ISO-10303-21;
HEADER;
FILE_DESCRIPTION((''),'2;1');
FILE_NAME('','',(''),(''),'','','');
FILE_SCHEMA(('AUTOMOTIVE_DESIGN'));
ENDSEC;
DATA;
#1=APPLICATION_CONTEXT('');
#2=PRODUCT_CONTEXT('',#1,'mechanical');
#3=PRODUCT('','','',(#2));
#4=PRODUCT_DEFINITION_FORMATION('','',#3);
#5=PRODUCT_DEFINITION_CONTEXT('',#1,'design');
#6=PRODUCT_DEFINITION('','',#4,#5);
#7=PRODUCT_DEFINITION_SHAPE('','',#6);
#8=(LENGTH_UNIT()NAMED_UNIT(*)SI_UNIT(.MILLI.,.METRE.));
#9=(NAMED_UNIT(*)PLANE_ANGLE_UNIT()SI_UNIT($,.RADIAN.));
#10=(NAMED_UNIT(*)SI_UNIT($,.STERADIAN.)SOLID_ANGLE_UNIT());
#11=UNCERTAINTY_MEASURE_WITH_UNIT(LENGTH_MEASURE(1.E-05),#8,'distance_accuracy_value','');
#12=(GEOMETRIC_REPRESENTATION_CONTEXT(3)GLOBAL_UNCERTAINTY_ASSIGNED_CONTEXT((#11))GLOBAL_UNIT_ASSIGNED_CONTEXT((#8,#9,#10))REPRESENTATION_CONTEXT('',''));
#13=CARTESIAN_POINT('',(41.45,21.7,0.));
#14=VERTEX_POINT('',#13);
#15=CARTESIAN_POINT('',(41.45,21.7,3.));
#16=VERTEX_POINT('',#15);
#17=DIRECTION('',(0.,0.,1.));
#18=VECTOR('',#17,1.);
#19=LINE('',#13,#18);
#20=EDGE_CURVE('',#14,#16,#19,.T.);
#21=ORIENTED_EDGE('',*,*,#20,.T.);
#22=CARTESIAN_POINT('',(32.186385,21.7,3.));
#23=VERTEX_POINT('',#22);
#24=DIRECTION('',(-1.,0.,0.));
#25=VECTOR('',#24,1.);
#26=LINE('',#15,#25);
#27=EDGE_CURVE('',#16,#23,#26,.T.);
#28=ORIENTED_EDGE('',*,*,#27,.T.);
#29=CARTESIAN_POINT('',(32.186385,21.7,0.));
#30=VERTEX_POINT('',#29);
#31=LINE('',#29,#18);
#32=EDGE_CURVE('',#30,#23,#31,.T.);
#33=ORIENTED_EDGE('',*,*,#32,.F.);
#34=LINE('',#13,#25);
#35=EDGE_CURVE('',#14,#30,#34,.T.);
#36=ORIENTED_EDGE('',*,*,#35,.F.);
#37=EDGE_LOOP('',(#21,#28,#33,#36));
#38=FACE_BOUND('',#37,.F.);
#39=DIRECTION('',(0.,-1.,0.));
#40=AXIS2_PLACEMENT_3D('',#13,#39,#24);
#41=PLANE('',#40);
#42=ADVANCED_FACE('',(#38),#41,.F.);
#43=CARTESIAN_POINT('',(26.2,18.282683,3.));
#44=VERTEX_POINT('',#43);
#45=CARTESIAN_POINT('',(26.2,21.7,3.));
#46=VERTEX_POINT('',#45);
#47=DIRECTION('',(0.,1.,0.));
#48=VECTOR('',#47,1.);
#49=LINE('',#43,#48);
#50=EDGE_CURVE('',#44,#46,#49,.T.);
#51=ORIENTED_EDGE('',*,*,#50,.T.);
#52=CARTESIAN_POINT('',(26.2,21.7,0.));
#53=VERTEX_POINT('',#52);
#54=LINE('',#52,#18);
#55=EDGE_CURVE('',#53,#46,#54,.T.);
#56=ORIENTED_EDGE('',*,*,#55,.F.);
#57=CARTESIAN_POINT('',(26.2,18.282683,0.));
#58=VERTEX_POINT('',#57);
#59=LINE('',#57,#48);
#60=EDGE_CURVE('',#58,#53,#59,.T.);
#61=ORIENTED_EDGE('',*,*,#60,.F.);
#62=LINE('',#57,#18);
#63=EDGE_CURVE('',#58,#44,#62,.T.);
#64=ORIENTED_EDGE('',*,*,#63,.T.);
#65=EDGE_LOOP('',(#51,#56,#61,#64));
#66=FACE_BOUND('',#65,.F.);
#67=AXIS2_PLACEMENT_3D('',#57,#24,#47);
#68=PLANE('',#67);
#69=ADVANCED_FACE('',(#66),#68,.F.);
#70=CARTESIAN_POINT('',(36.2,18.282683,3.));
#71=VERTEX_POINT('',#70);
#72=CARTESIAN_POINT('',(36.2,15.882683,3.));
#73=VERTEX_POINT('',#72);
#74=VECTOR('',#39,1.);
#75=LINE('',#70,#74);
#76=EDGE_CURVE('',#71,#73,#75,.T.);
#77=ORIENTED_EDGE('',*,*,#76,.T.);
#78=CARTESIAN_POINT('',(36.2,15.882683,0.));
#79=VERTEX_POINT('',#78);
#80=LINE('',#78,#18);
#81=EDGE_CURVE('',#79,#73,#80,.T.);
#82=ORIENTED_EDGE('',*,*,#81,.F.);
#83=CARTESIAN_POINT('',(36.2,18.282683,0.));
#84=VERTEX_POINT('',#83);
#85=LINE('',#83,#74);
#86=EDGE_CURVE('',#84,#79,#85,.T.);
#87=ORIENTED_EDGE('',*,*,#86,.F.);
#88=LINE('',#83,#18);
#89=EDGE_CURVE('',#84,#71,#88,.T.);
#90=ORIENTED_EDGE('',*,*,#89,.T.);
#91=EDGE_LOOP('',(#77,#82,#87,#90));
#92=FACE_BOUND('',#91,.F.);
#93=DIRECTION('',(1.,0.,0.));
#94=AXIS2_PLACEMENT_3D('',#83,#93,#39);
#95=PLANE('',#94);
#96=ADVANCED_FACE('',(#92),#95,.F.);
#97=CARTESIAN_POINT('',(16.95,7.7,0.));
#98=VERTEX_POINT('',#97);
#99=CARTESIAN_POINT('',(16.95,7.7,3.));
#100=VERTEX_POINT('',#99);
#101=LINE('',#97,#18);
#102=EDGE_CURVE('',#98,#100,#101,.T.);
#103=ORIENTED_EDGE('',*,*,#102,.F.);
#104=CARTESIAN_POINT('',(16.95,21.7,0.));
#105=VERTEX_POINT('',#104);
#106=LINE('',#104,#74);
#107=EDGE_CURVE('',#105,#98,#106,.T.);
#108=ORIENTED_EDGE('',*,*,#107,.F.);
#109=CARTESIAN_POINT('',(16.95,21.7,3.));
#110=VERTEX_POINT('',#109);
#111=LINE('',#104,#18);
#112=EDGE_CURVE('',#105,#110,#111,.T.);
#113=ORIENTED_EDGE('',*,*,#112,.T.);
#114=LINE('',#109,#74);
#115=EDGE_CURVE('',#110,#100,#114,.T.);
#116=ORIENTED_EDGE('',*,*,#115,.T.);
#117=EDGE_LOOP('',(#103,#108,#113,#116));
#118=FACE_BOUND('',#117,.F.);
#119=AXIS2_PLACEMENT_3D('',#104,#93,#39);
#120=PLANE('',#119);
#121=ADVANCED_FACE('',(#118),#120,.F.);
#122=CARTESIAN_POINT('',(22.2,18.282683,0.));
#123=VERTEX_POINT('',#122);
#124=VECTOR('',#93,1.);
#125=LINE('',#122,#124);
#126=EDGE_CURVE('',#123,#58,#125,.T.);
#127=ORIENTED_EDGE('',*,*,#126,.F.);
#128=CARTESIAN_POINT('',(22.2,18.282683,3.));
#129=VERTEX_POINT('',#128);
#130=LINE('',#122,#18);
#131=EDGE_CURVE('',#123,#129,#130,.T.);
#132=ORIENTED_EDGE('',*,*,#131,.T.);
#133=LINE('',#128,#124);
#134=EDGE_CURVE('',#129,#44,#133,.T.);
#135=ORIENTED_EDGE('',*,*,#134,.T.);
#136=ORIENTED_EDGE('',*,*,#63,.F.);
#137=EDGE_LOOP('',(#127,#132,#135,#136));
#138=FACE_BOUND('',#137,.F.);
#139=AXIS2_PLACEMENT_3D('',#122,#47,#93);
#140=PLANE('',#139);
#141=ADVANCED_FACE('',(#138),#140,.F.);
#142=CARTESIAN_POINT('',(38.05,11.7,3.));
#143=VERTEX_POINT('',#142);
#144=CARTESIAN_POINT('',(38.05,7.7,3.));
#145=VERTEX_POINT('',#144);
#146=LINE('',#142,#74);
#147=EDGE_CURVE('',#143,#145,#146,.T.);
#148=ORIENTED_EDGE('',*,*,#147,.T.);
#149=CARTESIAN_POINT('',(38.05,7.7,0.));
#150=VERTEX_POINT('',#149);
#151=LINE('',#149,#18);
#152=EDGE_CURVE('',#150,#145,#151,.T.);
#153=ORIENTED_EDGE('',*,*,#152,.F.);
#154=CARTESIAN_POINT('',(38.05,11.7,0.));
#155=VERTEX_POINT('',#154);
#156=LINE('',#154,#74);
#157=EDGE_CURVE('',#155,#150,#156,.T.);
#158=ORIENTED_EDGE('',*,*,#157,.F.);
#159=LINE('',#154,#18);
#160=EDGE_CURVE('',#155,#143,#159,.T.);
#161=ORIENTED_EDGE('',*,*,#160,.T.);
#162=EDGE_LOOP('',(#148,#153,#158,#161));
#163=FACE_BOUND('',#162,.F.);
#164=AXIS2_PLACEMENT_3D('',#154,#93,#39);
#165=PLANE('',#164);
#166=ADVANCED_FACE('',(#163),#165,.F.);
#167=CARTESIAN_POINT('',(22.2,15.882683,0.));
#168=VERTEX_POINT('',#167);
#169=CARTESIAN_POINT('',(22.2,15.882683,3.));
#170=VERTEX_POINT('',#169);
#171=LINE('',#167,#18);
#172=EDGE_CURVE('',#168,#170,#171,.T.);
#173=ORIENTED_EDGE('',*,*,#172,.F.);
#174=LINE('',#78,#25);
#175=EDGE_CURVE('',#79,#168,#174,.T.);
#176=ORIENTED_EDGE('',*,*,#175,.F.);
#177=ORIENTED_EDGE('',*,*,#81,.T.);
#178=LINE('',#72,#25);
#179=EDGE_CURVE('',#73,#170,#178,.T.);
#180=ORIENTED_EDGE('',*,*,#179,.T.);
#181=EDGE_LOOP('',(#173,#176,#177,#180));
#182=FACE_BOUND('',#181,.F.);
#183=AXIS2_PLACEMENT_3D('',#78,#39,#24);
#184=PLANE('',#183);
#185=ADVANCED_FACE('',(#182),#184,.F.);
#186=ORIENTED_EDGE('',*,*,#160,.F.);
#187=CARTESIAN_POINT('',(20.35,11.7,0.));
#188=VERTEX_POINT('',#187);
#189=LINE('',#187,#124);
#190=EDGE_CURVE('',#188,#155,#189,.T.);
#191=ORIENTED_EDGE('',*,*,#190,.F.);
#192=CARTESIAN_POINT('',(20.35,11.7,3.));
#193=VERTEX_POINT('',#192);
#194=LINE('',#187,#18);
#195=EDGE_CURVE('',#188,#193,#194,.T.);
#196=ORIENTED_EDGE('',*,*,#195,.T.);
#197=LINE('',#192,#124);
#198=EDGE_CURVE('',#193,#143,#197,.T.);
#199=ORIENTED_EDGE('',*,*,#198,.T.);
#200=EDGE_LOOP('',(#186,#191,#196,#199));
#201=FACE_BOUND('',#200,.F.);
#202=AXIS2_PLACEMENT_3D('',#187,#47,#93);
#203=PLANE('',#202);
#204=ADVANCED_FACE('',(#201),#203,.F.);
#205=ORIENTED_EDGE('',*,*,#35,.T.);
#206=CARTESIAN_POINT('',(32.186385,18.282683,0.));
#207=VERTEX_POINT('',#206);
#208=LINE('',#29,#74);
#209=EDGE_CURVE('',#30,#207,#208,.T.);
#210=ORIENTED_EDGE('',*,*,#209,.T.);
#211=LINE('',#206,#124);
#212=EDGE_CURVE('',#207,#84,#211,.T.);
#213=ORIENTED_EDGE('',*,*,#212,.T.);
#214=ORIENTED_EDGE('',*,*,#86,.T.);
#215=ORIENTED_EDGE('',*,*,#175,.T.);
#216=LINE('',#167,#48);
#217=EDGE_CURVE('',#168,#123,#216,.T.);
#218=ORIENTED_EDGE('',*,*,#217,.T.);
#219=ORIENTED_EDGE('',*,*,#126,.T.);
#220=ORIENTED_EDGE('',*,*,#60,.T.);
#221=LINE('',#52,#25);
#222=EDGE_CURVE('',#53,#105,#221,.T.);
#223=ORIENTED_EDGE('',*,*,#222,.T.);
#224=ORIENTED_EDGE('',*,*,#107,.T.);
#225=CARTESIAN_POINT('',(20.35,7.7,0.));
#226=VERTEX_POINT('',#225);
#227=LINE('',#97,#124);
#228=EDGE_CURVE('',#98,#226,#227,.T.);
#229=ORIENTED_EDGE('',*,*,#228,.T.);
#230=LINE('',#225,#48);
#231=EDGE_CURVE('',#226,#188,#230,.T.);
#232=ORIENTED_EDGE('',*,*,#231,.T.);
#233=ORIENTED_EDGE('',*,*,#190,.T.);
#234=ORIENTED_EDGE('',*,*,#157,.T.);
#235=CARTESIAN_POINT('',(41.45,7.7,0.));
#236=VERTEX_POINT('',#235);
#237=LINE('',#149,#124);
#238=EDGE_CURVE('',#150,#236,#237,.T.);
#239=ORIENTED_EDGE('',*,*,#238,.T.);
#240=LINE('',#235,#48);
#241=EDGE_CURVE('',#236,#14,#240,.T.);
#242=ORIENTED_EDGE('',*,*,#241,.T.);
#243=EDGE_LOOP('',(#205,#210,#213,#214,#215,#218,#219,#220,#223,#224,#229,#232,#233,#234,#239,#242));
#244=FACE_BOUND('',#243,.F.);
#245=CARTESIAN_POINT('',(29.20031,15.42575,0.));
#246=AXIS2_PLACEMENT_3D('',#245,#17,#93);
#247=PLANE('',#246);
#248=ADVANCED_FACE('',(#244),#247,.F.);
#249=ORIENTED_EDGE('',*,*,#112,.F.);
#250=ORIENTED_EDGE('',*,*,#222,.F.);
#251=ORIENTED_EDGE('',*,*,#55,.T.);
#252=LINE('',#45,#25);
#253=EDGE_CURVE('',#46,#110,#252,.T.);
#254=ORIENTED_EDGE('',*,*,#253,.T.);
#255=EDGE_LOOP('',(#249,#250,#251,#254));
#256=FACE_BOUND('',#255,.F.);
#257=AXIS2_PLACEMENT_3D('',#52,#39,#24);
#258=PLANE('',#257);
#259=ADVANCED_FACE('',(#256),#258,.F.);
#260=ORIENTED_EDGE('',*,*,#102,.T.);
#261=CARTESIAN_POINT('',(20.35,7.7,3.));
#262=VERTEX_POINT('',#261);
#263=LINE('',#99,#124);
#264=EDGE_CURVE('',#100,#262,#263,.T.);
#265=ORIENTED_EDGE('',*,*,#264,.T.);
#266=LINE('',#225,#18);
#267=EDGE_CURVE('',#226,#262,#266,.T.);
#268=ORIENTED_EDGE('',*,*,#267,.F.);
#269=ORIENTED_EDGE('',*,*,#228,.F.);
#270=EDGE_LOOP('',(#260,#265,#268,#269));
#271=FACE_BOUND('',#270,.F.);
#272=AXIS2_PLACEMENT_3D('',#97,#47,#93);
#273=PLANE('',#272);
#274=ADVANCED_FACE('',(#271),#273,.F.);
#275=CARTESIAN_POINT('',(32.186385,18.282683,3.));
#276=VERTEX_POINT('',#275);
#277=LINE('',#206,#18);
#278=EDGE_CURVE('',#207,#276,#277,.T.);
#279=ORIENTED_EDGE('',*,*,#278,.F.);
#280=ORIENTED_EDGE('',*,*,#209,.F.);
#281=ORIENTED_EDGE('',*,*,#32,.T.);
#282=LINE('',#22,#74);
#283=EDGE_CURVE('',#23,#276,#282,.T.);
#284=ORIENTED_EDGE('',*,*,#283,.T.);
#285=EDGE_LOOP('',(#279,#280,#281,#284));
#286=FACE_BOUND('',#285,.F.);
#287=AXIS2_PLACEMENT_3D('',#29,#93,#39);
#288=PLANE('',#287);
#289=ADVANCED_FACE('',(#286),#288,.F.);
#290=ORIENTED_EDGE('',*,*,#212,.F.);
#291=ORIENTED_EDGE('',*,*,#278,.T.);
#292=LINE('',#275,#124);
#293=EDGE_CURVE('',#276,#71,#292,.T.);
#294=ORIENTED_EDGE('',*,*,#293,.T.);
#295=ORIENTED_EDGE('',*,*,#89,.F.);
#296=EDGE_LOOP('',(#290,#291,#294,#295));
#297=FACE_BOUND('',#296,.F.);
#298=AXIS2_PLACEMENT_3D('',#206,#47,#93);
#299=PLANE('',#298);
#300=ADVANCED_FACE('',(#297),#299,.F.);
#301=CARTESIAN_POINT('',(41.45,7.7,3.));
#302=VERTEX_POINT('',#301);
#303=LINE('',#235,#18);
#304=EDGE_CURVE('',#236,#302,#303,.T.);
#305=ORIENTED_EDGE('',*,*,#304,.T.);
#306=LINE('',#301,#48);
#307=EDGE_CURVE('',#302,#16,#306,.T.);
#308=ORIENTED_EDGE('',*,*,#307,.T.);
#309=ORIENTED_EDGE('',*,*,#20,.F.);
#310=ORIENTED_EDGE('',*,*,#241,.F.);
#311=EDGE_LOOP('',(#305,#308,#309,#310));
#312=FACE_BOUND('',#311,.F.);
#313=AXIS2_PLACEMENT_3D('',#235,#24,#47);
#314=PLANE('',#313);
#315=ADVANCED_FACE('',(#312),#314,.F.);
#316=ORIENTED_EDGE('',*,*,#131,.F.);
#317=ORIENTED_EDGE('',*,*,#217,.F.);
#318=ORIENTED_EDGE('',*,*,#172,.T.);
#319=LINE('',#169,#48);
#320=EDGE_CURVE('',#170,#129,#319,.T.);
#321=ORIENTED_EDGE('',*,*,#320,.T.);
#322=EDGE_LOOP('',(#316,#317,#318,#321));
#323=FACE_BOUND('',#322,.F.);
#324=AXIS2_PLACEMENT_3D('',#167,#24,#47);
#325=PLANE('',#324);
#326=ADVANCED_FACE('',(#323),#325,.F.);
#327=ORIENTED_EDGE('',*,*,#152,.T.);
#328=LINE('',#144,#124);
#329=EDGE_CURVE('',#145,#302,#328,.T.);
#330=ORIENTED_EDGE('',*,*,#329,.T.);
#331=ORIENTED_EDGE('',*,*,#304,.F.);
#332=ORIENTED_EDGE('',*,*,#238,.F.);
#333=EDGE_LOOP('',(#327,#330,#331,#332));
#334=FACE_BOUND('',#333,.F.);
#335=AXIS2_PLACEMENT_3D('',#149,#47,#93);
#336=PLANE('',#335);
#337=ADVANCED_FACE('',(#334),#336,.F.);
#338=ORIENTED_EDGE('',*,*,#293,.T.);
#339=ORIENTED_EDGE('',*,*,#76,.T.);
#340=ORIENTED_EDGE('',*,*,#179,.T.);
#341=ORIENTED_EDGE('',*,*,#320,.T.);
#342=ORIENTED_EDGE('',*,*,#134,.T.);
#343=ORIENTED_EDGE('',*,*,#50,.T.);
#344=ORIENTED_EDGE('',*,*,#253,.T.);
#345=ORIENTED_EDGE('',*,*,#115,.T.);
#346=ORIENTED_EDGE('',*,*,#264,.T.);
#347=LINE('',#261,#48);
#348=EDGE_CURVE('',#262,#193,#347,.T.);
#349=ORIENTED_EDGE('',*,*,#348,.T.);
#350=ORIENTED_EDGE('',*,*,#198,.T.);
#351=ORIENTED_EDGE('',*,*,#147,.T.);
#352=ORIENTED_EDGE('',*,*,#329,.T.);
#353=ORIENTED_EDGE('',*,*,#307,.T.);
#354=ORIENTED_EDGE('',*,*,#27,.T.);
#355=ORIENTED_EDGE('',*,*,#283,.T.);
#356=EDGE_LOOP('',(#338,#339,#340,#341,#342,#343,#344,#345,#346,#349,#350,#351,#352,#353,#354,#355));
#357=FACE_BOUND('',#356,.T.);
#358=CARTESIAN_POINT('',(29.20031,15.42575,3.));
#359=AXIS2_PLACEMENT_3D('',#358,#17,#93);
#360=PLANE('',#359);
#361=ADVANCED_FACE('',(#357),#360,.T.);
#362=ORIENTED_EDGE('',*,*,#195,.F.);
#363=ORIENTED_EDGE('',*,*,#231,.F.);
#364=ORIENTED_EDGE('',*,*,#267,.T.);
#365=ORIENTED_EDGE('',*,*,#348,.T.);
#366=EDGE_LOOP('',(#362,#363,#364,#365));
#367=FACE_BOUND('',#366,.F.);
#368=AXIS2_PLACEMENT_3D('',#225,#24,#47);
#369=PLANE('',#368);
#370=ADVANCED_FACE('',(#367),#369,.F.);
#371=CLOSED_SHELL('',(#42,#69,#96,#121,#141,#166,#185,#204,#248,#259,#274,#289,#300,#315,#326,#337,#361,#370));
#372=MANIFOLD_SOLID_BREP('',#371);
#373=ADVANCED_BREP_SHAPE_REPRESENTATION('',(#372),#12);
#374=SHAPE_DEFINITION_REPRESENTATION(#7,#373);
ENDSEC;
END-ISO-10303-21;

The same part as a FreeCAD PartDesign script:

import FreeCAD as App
import Part
import Sketcher
from FreeCAD import Vector


def add_polygon(sketch, points):
    """Adds a closed chain of lines whose ends are joined by coincident constraints."""
    first, n = sketch.GeometryCount, len(points)
    for a, b in zip(points, points[1:] + points[:1]):
        sketch.addGeometry(Part.LineSegment(App.Vector(*a, 0), App.Vector(*b, 0)), False)
    for i in range(n):
        sketch.addConstraint(Sketcher.Constraint("Coincident", first + i, 2, first + (i + 1) % n, 1))

doc = App.newDocument("Part")
body = doc.addObject("PartDesign::Body", "Body")

sketch1 = body.newObject("Sketcher::SketchObject", "Sketch")
sketch1.AttachmentSupport = (doc.getObject("XY_Plane"), [""])
sketch1.MapMode = "FlatFace"
add_polygon(sketch1, [(38, 7.7), (41.5, 7.7), (41.5, 21.7), (32.2, 21.7), (32.2, 18.3), (36.2, 18.3), (36.2, 15.9), (22.2, 15.9), (22.2, 18.3), (26.2, 18.3), (26.2, 21.7), (16.9, 21.7), (16.9, 7.7), (20.4, 7.7), (20.4, 11.7), (38, 11.7)])
sketch1.addConstraint(Sketcher.Constraint("Horizontal", 0))
sketch1.addConstraint(Sketcher.Constraint("Vertical", 1))
sketch1.addConstraint(Sketcher.Constraint("Horizontal", 2))
sketch1.addConstraint(Sketcher.Constraint("Vertical", 3))
sketch1.addConstraint(Sketcher.Constraint("Horizontal", 4))
sketch1.addConstraint(Sketcher.Constraint("Vertical", 5))
sketch1.addConstraint(Sketcher.Constraint("Horizontal", 6))
sketch1.addConstraint(Sketcher.Constraint("Vertical", 7))
sketch1.addConstraint(Sketcher.Constraint("Horizontal", 8))
sketch1.addConstraint(Sketcher.Constraint("Vertical", 9))
sketch1.addConstraint(Sketcher.Constraint("Horizontal", 10))
sketch1.addConstraint(Sketcher.Constraint("Vertical", 11))
sketch1.addConstraint(Sketcher.Constraint("Horizontal", 12))
sketch1.addConstraint(Sketcher.Constraint("Vertical", 13))
sketch1.addConstraint(Sketcher.Constraint("Horizontal", 14))
sketch1.addConstraint(Sketcher.Constraint("Vertical", 15))
sketch1.addConstraint(Sketcher.Constraint("Horizontal", 4, 2, 7, 2))
sketch1.addConstraint(Sketcher.Constraint("Horizontal", 2, 2, 9, 2))
sketch1.addConstraint(Sketcher.Constraint("Horizontal", 0, 2, 11, 2))
sketch1.addConstraint(Sketcher.Constraint("Equal", 0, 12))
sketch1.addConstraint(Sketcher.Constraint("Equal", 6, 1))
sketch1.addConstraint(Sketcher.Constraint("Equal", 8, 13))
sketch1.addConstraint(Sketcher.Constraint("DistanceX", 6, 2, 6, 1, 14.0))
sketch1.addConstraint(Sketcher.Constraint("DistanceX", 8, 1, 8, 2, 4.0))
sketch1.addConstraint(Sketcher.Constraint("DistanceX", 0, 1, 0, 2, 3.4))
sketch1.addConstraint(Sketcher.Constraint("DistanceX", 14, 1, 14, 2, 17.7))
sketch1.addConstraint(Sketcher.Constraint("DistanceY", 5, 2, 5, 1, 2.4))
sketch1.addConstraint(Sketcher.Constraint("DistanceX", 10, 2, 10, 1, 9.25))
sketch1.addConstraint(Sketcher.Constraint("DistanceY", -1, 1, 0, 2, 7.7))
sketch1.addConstraint(Sketcher.Constraint("DistanceX", -1, 1, 4, 2, 36.2))
sketch1.addConstraint(Sketcher.Constraint("DistanceX", 2, 2, 2, 1, 9.263615))
sketch1.addConstraint(Sketcher.Constraint("DistanceY", 3, 2, 3, 1, 3.417317))
pad1 = body.newObject("PartDesign::Pad", "Pad")
pad1.Profile = sketch1
pad1.Length = 3

doc.recompute()
